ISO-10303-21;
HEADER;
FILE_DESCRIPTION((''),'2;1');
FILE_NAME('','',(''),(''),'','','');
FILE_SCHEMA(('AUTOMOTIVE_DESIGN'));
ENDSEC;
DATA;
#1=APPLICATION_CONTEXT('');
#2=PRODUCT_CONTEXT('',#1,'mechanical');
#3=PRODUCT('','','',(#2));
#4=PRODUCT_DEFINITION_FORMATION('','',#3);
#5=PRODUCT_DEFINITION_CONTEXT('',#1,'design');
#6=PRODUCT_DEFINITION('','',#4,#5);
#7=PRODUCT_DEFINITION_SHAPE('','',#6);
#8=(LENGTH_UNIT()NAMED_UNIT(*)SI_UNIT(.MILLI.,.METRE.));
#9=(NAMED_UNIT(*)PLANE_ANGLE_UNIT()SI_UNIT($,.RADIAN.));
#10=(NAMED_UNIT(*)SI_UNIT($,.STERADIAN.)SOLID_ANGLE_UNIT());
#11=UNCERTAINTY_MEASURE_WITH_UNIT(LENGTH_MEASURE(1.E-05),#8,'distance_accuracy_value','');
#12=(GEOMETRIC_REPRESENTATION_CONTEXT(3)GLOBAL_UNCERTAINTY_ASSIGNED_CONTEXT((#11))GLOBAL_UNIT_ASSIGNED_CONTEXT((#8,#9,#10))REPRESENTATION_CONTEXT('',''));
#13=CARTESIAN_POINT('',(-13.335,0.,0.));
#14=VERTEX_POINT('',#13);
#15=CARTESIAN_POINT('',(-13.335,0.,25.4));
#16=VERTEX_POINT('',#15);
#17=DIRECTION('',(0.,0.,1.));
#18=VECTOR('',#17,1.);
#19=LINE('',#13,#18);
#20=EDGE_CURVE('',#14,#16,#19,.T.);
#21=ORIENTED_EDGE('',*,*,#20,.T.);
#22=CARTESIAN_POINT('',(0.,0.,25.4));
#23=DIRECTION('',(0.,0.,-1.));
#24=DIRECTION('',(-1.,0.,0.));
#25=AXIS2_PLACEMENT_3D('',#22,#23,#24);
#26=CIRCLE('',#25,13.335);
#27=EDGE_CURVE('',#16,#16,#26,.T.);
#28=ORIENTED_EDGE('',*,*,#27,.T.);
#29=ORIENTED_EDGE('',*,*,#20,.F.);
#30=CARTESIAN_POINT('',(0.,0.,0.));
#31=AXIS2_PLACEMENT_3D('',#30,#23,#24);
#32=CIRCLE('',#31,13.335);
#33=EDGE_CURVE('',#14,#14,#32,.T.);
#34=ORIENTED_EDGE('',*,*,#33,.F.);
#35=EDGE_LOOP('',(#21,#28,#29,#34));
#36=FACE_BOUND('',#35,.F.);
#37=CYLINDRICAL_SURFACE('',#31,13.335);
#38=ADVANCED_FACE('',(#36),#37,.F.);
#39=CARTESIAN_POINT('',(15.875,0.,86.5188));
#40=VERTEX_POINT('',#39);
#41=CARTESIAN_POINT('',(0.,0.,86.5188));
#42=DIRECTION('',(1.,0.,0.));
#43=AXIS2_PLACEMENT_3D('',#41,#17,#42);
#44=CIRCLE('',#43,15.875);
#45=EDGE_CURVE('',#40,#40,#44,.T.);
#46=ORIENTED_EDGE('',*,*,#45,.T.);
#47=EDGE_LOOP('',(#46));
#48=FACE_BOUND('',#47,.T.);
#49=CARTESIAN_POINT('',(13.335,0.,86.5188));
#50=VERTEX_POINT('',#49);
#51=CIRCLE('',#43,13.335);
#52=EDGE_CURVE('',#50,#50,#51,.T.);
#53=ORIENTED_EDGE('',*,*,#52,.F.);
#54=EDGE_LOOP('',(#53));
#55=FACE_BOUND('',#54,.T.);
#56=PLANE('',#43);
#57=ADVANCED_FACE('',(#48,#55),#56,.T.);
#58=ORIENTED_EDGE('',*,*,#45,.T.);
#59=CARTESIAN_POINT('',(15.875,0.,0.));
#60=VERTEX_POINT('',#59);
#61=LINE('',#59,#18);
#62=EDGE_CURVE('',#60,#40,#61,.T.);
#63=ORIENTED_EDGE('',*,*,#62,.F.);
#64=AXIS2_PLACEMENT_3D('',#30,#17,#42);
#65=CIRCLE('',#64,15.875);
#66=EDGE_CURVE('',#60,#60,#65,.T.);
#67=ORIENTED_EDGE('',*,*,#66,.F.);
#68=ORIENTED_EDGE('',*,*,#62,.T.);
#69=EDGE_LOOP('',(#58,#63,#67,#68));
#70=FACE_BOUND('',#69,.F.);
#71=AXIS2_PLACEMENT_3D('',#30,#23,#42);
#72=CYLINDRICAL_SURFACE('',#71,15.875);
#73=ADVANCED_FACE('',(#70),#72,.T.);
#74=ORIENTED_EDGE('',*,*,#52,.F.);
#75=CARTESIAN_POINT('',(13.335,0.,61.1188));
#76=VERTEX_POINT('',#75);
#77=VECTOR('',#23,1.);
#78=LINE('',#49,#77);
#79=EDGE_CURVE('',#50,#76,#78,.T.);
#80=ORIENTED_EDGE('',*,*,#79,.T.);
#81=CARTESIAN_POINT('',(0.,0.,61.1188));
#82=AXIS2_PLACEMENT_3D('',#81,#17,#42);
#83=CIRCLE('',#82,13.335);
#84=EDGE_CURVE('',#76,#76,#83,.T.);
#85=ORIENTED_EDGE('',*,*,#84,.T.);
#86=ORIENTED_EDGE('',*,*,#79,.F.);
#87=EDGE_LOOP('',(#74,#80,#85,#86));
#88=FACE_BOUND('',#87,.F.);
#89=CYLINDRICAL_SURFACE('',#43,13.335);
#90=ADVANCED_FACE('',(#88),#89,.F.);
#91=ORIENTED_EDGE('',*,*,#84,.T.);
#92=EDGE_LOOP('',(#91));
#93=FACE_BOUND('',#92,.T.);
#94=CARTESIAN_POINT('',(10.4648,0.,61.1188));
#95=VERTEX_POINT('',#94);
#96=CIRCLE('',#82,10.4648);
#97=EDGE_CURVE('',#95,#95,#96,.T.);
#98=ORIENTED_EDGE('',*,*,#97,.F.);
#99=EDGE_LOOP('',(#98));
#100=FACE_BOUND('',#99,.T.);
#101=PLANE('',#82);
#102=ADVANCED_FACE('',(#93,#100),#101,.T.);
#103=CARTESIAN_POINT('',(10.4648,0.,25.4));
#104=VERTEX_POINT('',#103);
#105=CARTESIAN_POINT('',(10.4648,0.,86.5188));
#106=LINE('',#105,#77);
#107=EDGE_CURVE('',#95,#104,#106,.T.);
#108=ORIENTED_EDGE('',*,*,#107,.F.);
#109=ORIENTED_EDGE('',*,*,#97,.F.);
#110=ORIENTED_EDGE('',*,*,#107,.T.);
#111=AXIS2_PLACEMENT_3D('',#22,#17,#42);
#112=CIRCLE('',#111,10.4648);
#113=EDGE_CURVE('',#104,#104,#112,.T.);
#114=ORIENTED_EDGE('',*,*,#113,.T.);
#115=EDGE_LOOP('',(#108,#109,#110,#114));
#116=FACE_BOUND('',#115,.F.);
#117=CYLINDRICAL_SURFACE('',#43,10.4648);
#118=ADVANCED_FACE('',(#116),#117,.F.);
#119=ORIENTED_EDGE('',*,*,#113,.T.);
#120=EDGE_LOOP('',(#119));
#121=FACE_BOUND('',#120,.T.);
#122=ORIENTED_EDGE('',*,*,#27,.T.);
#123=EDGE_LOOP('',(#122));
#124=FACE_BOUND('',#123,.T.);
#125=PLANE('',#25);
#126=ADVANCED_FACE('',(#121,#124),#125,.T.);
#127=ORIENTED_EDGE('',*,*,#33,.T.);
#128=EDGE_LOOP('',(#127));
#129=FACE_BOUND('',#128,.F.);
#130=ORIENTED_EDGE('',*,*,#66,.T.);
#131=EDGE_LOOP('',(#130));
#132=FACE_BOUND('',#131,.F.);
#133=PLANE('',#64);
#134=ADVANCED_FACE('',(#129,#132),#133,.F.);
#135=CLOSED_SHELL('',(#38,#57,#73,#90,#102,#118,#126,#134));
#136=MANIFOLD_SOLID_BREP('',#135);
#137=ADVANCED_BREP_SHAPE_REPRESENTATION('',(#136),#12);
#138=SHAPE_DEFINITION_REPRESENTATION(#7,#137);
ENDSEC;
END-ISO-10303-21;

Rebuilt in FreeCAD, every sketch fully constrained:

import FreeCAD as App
import Part
import Sketcher

V = App.Vector
Q = App.Units.Quantity

doc = App.newDocument("Part")
body = doc.addObject("PartDesign::Body", "Body")

sketch1 = doc.addObject("Sketcher::SketchObject", "Sketch")
body.addObject(sketch1)
sketch1.AttachmentSupport = (doc.XY_Plane, [""])
sketch1.MapMode = "FlatFace"
sketch1.addGeometry(Part.Circle(V(0, 0, 0), V(0, 0, 1), 15.875), False)
sketch1.addConstraint([
    Sketcher.Constraint("Coincident", 0, 3, -1, 1),
    Sketcher.Constraint("Diameter", 0, Q("1.25 in")),
])
pad1 = doc.addObject("PartDesign::Pad", "Pad")
body.addObject(pad1)
pad1.Profile = sketch1
pad1.Length = Q("3.406252 in")

sketch2 = doc.addObject("Sketcher::SketchObject", "Sketch001")
body.addObject(sketch2)
sketch2.AttachmentSupport = (doc.XY_Plane, [""])
sketch2.MapMode = "FlatFace"
sketch2.AttachmentOffset = App.Placement(V(0, 0, 3.406252 * 25.4), App.Rotation())
sketch2.addGeometry(Part.Circle(V(0, 0, 0), V(0, 0, 1), 10.4648), False)
sketch2.addConstraint([
    Sketcher.Constraint("Coincident", 0, 3, -1, 1),
    Sketcher.Constraint("Diameter", 0, Q("0.824 in")),
])
pocket1 = doc.addObject("PartDesign::Pocket", "Pocket")
body.addObject(pocket1)
pocket1.Profile = sketch2
pocket1.Length = Q("7 in")

sketch3 = doc.addObject("Sketcher::SketchObject", "Sketch002")
body.addObject(sketch3)
sketch3.AttachmentSupport = (doc.XY_Plane, [""])
sketch3.MapMode = "FlatFace"
sketch3.AttachmentOffset = App.Placement(V(0, 0, 3.406252 * 25.4), App.Rotation())
sketch3.addGeometry([
    Part.Circle(V(0, 0, 0), V(0, 0, 1), 13.335),
    Part.Circle(V(0, 0, 0), V(0, 0, 1), 10.4648),
], False)
sketch3.addConstraint([
    Sketcher.Constraint("Coincident", 0, 3, -1, 1),
    Sketcher.Constraint("Coincident", 1, 3, -1, 1),
    Sketcher.Constraint("Diameter", 0, Q("1.05 in")),
    Sketcher.Constraint("Diameter", 1, Q("0.824 in")),
])
pocket2 = doc.addObject("PartDesign::Pocket", "Pocket001")
body.addObject(pocket2)
pocket2.Profile = sketch3
pocket2.Length = Q("1 in")

sketch4 = doc.addObject("Sketcher::SketchObject", "Sketch003")
body.addObject(sketch4)
sketch4.AttachmentSupport = (doc.XY_Plane, [""])
sketch4.MapMode = "FlatFace"
sketch4.addGeometry([
    Part.Circle(V(0, 0, 0), V(0, 0, 1), 13.335),
    Part.Circle(V(0, 0, 0), V(0, 0, 1), 10.4648),
], False)
sketch4.addConstraint([
    Sketcher.Constraint("Coincident", 0, 3, -1, 1),
    Sketcher.Constraint("Coincident", 1, 3, -1, 1),
    Sketcher.Constraint("Diameter", 0, Q("1.05 in")),
    Sketcher.Constraint("Diameter", 1, Q("0.824 in")),
])
pocket3 = doc.addObject("PartDesign::Pocket", "Pocket002")
body.addObject(pocket3)
pocket3.Profile = sketch4
pocket3.Length = Q("1 in")
pocket3.Reversed = True

doc.recompute()
